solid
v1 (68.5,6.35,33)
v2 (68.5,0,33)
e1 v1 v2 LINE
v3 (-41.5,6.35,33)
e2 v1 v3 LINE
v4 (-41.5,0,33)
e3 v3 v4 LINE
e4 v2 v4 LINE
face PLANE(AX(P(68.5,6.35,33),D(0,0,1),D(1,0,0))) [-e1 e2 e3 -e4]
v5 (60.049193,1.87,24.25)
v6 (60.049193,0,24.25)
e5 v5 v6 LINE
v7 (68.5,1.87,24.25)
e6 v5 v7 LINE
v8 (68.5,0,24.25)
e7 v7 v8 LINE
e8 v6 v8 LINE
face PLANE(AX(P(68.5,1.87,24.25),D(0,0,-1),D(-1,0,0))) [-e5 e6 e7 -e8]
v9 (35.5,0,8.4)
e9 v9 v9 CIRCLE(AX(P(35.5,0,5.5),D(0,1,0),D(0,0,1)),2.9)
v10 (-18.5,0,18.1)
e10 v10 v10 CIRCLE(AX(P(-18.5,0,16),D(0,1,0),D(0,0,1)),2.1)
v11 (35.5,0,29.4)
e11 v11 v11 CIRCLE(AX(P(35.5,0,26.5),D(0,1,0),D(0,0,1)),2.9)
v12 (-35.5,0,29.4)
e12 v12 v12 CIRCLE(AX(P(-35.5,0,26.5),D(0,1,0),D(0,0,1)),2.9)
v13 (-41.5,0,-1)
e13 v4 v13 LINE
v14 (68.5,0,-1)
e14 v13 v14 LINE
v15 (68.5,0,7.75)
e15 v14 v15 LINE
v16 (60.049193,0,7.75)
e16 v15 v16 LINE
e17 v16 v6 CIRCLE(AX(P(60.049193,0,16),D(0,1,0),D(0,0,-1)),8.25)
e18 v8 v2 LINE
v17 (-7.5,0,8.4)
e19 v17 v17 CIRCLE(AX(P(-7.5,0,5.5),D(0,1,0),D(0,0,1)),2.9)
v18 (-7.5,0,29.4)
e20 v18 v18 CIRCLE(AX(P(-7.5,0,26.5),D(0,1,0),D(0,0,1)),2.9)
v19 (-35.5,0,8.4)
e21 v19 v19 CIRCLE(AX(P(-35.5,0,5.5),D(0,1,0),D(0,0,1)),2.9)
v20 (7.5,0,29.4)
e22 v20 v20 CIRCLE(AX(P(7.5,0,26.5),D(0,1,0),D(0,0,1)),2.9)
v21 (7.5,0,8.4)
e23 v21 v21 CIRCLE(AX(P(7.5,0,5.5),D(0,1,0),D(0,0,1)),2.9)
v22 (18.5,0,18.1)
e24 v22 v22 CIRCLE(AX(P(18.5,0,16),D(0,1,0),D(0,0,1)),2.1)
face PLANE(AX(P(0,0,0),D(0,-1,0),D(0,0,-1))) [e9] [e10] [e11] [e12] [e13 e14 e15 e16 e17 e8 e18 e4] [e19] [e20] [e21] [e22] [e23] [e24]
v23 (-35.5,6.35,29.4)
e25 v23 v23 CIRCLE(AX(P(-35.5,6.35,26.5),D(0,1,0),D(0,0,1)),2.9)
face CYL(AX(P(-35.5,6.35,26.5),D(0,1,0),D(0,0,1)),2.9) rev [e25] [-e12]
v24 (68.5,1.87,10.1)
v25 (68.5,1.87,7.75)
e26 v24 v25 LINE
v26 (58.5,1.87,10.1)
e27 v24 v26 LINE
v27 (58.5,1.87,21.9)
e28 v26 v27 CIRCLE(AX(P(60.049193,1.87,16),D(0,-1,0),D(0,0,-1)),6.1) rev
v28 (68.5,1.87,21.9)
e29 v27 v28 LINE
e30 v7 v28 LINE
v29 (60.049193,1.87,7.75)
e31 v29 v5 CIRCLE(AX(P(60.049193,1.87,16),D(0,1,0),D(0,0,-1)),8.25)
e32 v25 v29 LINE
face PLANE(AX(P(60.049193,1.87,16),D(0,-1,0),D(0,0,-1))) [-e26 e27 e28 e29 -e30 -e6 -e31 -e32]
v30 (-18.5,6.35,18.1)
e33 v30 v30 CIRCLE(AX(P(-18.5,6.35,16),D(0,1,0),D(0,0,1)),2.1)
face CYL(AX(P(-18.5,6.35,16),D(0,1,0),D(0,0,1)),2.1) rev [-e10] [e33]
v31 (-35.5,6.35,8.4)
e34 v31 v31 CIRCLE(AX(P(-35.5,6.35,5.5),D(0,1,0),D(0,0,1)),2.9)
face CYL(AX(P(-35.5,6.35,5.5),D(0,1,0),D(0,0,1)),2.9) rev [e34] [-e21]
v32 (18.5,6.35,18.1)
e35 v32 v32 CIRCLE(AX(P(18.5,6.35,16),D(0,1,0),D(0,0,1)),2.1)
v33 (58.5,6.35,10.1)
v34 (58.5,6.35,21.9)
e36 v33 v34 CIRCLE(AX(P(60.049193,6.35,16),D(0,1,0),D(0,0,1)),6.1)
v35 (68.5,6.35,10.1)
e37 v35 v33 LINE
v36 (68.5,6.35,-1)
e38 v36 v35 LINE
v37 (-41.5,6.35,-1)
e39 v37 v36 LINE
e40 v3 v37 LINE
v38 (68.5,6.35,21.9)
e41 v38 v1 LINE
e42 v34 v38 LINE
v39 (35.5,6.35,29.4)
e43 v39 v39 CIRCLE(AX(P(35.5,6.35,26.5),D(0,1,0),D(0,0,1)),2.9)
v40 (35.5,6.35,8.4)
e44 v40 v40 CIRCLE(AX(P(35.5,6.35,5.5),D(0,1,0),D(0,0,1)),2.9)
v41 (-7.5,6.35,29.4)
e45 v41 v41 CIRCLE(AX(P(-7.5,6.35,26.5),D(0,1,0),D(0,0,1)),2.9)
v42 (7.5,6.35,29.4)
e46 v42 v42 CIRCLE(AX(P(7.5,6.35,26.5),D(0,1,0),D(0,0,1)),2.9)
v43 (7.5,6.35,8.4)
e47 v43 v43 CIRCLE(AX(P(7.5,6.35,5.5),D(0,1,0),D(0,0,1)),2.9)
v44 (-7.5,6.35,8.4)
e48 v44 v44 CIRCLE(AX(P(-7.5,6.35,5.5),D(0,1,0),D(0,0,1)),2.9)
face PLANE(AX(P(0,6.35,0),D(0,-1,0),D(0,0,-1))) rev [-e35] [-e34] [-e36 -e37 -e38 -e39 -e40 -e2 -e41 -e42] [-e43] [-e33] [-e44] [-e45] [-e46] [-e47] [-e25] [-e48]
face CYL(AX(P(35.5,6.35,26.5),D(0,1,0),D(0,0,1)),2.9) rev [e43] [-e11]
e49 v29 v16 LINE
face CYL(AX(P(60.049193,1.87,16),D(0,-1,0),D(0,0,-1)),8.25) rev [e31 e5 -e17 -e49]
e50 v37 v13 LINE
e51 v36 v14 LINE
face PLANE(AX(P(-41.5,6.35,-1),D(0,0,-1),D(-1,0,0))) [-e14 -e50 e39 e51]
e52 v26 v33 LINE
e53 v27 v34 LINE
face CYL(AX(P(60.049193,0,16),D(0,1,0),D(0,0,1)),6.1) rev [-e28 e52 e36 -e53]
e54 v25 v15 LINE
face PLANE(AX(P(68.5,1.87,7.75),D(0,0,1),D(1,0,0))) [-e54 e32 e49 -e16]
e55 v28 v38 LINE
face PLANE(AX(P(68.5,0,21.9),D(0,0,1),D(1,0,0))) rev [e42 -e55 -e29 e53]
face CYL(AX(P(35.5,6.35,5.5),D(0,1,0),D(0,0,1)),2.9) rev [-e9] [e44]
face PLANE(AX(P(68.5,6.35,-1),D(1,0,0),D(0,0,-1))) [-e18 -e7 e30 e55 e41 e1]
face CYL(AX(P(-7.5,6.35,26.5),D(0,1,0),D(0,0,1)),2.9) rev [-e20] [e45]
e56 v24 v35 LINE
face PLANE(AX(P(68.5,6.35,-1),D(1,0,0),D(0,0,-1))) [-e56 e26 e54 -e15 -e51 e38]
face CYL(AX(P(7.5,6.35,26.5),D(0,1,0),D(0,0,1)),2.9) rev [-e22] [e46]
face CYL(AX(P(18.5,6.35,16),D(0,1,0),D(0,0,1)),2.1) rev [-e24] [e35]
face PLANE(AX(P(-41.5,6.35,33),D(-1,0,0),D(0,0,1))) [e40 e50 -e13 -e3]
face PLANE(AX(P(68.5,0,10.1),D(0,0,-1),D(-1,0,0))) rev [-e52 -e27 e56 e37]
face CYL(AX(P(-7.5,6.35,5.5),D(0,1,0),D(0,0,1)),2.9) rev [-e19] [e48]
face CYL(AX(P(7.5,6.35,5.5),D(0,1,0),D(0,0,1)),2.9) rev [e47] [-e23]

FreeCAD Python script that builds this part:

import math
import FreeCAD as App
import Part
import Sketcher

V = App.Vector
Q = App.Units.Quantity


def add_polygon(sketch, points):
    """Adds a closed chain of lines whose ends are joined by coincident constraints."""
    first, n = sketch.GeometryCount, len(points)
    for a, b in zip(points, points[1:] + points[:1]):
        sketch.addGeometry(Part.LineSegment(App.Vector(*a, 0), App.Vector(*b, 0)), False)
    for i in range(n):
        sketch.addConstraint(Sketcher.Constraint("Coincident", first + i, 2, first + (i + 1) % n, 1))

doc = App.newDocument("Part")
body = doc.addObject("PartDesign::Body", "Body")

sketch1 = body.newObject("Sketcher::SketchObject", "Sketch")
sketch1.AttachmentSupport = (doc.getObject("XZ_Plane"), [""])
sketch1.MapMode = "FlatFace"
add_polygon(sketch1, [(-41.5, 33), (-41.5, -1), (68.5, -1), (68.5, 33)])
sketch1.addConstraint([
    Sketcher.Constraint("Vertical", 0),
    Sketcher.Constraint("Horizontal", 1),
    Sketcher.Constraint("Vertical", 2),
    Sketcher.Constraint("Horizontal", 3),
    Sketcher.Constraint("DistanceX", 1, 1, 1, 2, Q("110 mm")),
    Sketcher.Constraint("DistanceY", 0, 2, 0, 1, Q("34 mm")),
    Sketcher.Constraint("DistanceY", 0, 2, -1, 1, Q("1 mm")),
    Sketcher.Constraint("DistanceX", 0, 2, -1, 1, Q("41.5 mm")),
])
pad1 = body.newObject("PartDesign::Pad", "Pad")
pad1.Profile = sketch1
pad1.Length = 6.35
pad1.Reversed = True

sketch2 = body.newObject("Sketcher::SketchObject", "Sketch001")
sketch2.AttachmentSupport = (doc.getObject("XZ_Plane"), [""])
sketch2.MapMode = "FlatFace"
sketch2.AttachmentOffset = App.Placement(V(0, 0, -6.35), App.Rotation())
sketch2.addGeometry([
    Part.Circle(V(-35.5, 5.5, 0), V(0, 0, 1), 2.9),
    Part.Circle(V(-7.5, 5.5, 0), V(0, 0, 1), 2.9),
    Part.Circle(V(7.5, 5.5, 0), V(0, 0, 1), 2.9),
    Part.Circle(V(35.5, 5.5, 0), V(0, 0, 1), 2.9),
    Part.Circle(V(-35.5, 26.5, 0), V(0, 0, 1), 2.9),
    Part.Circle(V(-7.5, 26.5, 0), V(0, 0, 1), 2.9),
    Part.Circle(V(7.5, 26.5, 0), V(0, 0, 1), 2.9),
    Part.Circle(V(35.5, 26.5, 0), V(0, 0, 1), 2.9),
], False)
sketch2.addConstraint([
    Sketcher.Constraint("Equal", 0, 1),
    Sketcher.Constraint("Equal", 1, 2),
    Sketcher.Constraint("Equal", 2, 3),
    Sketcher.Constraint("Equal", 3, 4),
    Sketcher.Constraint("Equal", 4, 5),
    Sketcher.Constraint("Equal", 5, 6),
    Sketcher.Constraint("Equal", 6, 7),
    Sketcher.Constraint("Symmetric", 1, 3, 2, 3, -2),
    Sketcher.Constraint("Symmetric", 0, 3, 3, 3, -2),
    Sketcher.Constraint("Symmetric", 5, 3, 6, 3, -2),
    Sketcher.Constraint("Symmetric", 4, 3, 7, 3, -2),
    Sketcher.Constraint("Horizontal", 0, 3, 1, 3),
    Sketcher.Constraint("Horizontal", 4, 3, 5, 3),
    Sketcher.Constraint("Vertical", 0, 3, 4, 3),
    Sketcher.Constraint("Vertical", 1, 3, 5, 3),
    Sketcher.Constraint("Diameter", 0, Q("5.8 mm")),
    Sketcher.Constraint("DistanceX", 0, 3, 1, 3, Q("28 mm")),
    Sketcher.Constraint("DistanceX", 1, 3, 2, 3, Q("15 mm")),
    Sketcher.Constraint("DistanceY", 0, 3, 4, 3, Q("21 mm")),
    Sketcher.Constraint("DistanceY", -1, 1, 0, 3, Q("5.5 mm")),
])
doc.recompute()
hole = body.newObject("PartDesign::Hole", "Hole")
hole.Profile = sketch2
hole.ThreadType = "None"
hole.Diameter = 5.8
hole.DepthType = "ThroughAll"
hole.Reversed = True

sketch3 = body.newObject("Sketcher::SketchObject", "Sketch002")
sketch3.AttachmentSupport = (doc.getObject("XZ_Plane"), [""])
sketch3.MapMode = "FlatFace"
sketch3.AttachmentOffset = App.Placement(V(0, 0, -6.35), App.Rotation())
sketch3.addGeometry([
    Part.Circle(V(-18.5, 16, 0), V(0, 0, 1), 2.1),
    Part.Circle(V(18.5, 16, 0), V(0, 0, 1), 2.1),
], False)
sketch3.addConstraint([
    Sketcher.Constraint("Equal", 0, 1),
    Sketcher.Constraint("Symmetric", 0, 3, 1, 3, -2),
    Sketcher.Constraint("Diameter", 0, Q("4.2 mm")),
    Sketcher.Constraint("DistanceY", -1, 1, 0, 3, Q("16 mm")),
    Sketcher.Constraint("DistanceX", 0, 3, 1, 3, Q("37 mm")),
])
doc.recompute()
hole2 = body.newObject("PartDesign::Hole", "Hole001")
hole2.Profile = sketch3
hole2.ThreadType = "None"
hole2.Diameter = 4.2
hole2.DepthType = "ThroughAll"
hole2.Reversed = True

sketch4 = body.newObject("Sketcher::SketchObject", "Sketch003")
sketch4.AttachmentSupport = (doc.getObject("XZ_Plane"), [""])
sketch4.MapMode = "FlatFace"
sketch4.AttachmentOffset = App.Placement(V(0, 0, -6.35), App.Rotation())
sketch4.addGeometry([
    Part.LineSegment(V(68.5, 10.1, 0), V(58.5, 10.1, 0)),
    Part.ArcOfCircle(Part.Circle(V(60.049193, 16, 0), V(0, 0, 1), 6.1), math.radians(104.712332), math.radians(255.287668)),
    Part.LineSegment(V(58.5, 21.9, 0), V(68.5, 21.9, 0)),
    Part.LineSegment(V(68.5, 21.9, 0), V(68.5, 10.1, 0)),
], False)
sketch4.addConstraint([
    Sketcher.Constraint("Coincident", 0, 2, 1, 2),
    Sketcher.Constraint("Coincident", 1, 1, 2, 1),
    Sketcher.Constraint("Coincident", 2, 2, 3, 1),
    Sketcher.Constraint("Coincident", 3, 2, 0, 1),
    Sketcher.Constraint("Horizontal", 0),
    Sketcher.Constraint("Horizontal", 2),
    Sketcher.Constraint("Vertical", 3),
    Sketcher.Constraint("Vertical", 0, 2, 1, 1),
    Sketcher.Constraint("Radius", 1, Q("6.1 mm")),
    Sketcher.Constraint("DistanceX", 0, 2, 0, 1, Q("10 mm")),
    Sketcher.Constraint("DistanceY", 3, 2, 3, 1, Q("11.8 mm")),
    Sketcher.Constraint("DistanceY", -1, 1, 1, 3, Q("16 mm")),
    Sketcher.Constraint("DistanceX", -1, 1, 0, 2, Q("58.5 mm")),
])
pocket1 = body.newObject("PartDesign::Pocket", "Pocket")
pocket1.Profile = sketch4
pocket1.Type = "ThroughAll"
pocket1.Reversed = True

sketch5 = body.newObject("Sketcher::SketchObject", "Sketch004")
sketch5.AttachmentSupport = (doc.getObject("XZ_Plane"), [""])
sketch5.MapMode = "FlatFace"
sketch5.addGeometry([
    Part.LineSegment(V(60.049193, 24.25, 0), V(68.5, 24.25, 0)),
    Part.LineSegment(V(68.5, 24.25, 0), V(68.5, 7.75, 0)),
    Part.LineSegment(V(68.5, 7.75, 0), V(60.049193, 7.75, 0)),
    Part.ArcOfCircle(Part.Circle(V(60.049193, 16, 0), V(0, 0, 1), 8.25), math.radians(90), math.radians(270)),
], False)
sketch5.addConstraint([
    Sketcher.Constraint("Coincident", 0, 2, 1, 1),
    Sketcher.Constraint("Coincident", 1, 2, 2, 1),
    Sketcher.Constraint("Tangent", 2, 2, 3, 2),
    Sketcher.Constraint("Tangent", 3, 1, 0, 1),
    Sketcher.Constraint("Horizontal", 0),
    Sketcher.Constraint("Vertical", 1),
    Sketcher.Constraint("Horizontal", 2),
    Sketcher.Constraint("Radius", 3, Q("8.25 mm")),
    Sketcher.Constraint("DistanceY", -1, 1, 3, 3, Q("16 mm")),
    Sketcher.Constraint("DistanceX", -1, 1, 0, 2, Q("68.5 mm")),
    Sketcher.Constraint("DistanceX", 0, 1, 0, 2, Q("8.450807 mm")),
])
pocket2 = body.newObject("PartDesign::Pocket", "Pocket001")
pocket2.Profile = sketch5
pocket2.Length = 1.87

doc.recompute()
